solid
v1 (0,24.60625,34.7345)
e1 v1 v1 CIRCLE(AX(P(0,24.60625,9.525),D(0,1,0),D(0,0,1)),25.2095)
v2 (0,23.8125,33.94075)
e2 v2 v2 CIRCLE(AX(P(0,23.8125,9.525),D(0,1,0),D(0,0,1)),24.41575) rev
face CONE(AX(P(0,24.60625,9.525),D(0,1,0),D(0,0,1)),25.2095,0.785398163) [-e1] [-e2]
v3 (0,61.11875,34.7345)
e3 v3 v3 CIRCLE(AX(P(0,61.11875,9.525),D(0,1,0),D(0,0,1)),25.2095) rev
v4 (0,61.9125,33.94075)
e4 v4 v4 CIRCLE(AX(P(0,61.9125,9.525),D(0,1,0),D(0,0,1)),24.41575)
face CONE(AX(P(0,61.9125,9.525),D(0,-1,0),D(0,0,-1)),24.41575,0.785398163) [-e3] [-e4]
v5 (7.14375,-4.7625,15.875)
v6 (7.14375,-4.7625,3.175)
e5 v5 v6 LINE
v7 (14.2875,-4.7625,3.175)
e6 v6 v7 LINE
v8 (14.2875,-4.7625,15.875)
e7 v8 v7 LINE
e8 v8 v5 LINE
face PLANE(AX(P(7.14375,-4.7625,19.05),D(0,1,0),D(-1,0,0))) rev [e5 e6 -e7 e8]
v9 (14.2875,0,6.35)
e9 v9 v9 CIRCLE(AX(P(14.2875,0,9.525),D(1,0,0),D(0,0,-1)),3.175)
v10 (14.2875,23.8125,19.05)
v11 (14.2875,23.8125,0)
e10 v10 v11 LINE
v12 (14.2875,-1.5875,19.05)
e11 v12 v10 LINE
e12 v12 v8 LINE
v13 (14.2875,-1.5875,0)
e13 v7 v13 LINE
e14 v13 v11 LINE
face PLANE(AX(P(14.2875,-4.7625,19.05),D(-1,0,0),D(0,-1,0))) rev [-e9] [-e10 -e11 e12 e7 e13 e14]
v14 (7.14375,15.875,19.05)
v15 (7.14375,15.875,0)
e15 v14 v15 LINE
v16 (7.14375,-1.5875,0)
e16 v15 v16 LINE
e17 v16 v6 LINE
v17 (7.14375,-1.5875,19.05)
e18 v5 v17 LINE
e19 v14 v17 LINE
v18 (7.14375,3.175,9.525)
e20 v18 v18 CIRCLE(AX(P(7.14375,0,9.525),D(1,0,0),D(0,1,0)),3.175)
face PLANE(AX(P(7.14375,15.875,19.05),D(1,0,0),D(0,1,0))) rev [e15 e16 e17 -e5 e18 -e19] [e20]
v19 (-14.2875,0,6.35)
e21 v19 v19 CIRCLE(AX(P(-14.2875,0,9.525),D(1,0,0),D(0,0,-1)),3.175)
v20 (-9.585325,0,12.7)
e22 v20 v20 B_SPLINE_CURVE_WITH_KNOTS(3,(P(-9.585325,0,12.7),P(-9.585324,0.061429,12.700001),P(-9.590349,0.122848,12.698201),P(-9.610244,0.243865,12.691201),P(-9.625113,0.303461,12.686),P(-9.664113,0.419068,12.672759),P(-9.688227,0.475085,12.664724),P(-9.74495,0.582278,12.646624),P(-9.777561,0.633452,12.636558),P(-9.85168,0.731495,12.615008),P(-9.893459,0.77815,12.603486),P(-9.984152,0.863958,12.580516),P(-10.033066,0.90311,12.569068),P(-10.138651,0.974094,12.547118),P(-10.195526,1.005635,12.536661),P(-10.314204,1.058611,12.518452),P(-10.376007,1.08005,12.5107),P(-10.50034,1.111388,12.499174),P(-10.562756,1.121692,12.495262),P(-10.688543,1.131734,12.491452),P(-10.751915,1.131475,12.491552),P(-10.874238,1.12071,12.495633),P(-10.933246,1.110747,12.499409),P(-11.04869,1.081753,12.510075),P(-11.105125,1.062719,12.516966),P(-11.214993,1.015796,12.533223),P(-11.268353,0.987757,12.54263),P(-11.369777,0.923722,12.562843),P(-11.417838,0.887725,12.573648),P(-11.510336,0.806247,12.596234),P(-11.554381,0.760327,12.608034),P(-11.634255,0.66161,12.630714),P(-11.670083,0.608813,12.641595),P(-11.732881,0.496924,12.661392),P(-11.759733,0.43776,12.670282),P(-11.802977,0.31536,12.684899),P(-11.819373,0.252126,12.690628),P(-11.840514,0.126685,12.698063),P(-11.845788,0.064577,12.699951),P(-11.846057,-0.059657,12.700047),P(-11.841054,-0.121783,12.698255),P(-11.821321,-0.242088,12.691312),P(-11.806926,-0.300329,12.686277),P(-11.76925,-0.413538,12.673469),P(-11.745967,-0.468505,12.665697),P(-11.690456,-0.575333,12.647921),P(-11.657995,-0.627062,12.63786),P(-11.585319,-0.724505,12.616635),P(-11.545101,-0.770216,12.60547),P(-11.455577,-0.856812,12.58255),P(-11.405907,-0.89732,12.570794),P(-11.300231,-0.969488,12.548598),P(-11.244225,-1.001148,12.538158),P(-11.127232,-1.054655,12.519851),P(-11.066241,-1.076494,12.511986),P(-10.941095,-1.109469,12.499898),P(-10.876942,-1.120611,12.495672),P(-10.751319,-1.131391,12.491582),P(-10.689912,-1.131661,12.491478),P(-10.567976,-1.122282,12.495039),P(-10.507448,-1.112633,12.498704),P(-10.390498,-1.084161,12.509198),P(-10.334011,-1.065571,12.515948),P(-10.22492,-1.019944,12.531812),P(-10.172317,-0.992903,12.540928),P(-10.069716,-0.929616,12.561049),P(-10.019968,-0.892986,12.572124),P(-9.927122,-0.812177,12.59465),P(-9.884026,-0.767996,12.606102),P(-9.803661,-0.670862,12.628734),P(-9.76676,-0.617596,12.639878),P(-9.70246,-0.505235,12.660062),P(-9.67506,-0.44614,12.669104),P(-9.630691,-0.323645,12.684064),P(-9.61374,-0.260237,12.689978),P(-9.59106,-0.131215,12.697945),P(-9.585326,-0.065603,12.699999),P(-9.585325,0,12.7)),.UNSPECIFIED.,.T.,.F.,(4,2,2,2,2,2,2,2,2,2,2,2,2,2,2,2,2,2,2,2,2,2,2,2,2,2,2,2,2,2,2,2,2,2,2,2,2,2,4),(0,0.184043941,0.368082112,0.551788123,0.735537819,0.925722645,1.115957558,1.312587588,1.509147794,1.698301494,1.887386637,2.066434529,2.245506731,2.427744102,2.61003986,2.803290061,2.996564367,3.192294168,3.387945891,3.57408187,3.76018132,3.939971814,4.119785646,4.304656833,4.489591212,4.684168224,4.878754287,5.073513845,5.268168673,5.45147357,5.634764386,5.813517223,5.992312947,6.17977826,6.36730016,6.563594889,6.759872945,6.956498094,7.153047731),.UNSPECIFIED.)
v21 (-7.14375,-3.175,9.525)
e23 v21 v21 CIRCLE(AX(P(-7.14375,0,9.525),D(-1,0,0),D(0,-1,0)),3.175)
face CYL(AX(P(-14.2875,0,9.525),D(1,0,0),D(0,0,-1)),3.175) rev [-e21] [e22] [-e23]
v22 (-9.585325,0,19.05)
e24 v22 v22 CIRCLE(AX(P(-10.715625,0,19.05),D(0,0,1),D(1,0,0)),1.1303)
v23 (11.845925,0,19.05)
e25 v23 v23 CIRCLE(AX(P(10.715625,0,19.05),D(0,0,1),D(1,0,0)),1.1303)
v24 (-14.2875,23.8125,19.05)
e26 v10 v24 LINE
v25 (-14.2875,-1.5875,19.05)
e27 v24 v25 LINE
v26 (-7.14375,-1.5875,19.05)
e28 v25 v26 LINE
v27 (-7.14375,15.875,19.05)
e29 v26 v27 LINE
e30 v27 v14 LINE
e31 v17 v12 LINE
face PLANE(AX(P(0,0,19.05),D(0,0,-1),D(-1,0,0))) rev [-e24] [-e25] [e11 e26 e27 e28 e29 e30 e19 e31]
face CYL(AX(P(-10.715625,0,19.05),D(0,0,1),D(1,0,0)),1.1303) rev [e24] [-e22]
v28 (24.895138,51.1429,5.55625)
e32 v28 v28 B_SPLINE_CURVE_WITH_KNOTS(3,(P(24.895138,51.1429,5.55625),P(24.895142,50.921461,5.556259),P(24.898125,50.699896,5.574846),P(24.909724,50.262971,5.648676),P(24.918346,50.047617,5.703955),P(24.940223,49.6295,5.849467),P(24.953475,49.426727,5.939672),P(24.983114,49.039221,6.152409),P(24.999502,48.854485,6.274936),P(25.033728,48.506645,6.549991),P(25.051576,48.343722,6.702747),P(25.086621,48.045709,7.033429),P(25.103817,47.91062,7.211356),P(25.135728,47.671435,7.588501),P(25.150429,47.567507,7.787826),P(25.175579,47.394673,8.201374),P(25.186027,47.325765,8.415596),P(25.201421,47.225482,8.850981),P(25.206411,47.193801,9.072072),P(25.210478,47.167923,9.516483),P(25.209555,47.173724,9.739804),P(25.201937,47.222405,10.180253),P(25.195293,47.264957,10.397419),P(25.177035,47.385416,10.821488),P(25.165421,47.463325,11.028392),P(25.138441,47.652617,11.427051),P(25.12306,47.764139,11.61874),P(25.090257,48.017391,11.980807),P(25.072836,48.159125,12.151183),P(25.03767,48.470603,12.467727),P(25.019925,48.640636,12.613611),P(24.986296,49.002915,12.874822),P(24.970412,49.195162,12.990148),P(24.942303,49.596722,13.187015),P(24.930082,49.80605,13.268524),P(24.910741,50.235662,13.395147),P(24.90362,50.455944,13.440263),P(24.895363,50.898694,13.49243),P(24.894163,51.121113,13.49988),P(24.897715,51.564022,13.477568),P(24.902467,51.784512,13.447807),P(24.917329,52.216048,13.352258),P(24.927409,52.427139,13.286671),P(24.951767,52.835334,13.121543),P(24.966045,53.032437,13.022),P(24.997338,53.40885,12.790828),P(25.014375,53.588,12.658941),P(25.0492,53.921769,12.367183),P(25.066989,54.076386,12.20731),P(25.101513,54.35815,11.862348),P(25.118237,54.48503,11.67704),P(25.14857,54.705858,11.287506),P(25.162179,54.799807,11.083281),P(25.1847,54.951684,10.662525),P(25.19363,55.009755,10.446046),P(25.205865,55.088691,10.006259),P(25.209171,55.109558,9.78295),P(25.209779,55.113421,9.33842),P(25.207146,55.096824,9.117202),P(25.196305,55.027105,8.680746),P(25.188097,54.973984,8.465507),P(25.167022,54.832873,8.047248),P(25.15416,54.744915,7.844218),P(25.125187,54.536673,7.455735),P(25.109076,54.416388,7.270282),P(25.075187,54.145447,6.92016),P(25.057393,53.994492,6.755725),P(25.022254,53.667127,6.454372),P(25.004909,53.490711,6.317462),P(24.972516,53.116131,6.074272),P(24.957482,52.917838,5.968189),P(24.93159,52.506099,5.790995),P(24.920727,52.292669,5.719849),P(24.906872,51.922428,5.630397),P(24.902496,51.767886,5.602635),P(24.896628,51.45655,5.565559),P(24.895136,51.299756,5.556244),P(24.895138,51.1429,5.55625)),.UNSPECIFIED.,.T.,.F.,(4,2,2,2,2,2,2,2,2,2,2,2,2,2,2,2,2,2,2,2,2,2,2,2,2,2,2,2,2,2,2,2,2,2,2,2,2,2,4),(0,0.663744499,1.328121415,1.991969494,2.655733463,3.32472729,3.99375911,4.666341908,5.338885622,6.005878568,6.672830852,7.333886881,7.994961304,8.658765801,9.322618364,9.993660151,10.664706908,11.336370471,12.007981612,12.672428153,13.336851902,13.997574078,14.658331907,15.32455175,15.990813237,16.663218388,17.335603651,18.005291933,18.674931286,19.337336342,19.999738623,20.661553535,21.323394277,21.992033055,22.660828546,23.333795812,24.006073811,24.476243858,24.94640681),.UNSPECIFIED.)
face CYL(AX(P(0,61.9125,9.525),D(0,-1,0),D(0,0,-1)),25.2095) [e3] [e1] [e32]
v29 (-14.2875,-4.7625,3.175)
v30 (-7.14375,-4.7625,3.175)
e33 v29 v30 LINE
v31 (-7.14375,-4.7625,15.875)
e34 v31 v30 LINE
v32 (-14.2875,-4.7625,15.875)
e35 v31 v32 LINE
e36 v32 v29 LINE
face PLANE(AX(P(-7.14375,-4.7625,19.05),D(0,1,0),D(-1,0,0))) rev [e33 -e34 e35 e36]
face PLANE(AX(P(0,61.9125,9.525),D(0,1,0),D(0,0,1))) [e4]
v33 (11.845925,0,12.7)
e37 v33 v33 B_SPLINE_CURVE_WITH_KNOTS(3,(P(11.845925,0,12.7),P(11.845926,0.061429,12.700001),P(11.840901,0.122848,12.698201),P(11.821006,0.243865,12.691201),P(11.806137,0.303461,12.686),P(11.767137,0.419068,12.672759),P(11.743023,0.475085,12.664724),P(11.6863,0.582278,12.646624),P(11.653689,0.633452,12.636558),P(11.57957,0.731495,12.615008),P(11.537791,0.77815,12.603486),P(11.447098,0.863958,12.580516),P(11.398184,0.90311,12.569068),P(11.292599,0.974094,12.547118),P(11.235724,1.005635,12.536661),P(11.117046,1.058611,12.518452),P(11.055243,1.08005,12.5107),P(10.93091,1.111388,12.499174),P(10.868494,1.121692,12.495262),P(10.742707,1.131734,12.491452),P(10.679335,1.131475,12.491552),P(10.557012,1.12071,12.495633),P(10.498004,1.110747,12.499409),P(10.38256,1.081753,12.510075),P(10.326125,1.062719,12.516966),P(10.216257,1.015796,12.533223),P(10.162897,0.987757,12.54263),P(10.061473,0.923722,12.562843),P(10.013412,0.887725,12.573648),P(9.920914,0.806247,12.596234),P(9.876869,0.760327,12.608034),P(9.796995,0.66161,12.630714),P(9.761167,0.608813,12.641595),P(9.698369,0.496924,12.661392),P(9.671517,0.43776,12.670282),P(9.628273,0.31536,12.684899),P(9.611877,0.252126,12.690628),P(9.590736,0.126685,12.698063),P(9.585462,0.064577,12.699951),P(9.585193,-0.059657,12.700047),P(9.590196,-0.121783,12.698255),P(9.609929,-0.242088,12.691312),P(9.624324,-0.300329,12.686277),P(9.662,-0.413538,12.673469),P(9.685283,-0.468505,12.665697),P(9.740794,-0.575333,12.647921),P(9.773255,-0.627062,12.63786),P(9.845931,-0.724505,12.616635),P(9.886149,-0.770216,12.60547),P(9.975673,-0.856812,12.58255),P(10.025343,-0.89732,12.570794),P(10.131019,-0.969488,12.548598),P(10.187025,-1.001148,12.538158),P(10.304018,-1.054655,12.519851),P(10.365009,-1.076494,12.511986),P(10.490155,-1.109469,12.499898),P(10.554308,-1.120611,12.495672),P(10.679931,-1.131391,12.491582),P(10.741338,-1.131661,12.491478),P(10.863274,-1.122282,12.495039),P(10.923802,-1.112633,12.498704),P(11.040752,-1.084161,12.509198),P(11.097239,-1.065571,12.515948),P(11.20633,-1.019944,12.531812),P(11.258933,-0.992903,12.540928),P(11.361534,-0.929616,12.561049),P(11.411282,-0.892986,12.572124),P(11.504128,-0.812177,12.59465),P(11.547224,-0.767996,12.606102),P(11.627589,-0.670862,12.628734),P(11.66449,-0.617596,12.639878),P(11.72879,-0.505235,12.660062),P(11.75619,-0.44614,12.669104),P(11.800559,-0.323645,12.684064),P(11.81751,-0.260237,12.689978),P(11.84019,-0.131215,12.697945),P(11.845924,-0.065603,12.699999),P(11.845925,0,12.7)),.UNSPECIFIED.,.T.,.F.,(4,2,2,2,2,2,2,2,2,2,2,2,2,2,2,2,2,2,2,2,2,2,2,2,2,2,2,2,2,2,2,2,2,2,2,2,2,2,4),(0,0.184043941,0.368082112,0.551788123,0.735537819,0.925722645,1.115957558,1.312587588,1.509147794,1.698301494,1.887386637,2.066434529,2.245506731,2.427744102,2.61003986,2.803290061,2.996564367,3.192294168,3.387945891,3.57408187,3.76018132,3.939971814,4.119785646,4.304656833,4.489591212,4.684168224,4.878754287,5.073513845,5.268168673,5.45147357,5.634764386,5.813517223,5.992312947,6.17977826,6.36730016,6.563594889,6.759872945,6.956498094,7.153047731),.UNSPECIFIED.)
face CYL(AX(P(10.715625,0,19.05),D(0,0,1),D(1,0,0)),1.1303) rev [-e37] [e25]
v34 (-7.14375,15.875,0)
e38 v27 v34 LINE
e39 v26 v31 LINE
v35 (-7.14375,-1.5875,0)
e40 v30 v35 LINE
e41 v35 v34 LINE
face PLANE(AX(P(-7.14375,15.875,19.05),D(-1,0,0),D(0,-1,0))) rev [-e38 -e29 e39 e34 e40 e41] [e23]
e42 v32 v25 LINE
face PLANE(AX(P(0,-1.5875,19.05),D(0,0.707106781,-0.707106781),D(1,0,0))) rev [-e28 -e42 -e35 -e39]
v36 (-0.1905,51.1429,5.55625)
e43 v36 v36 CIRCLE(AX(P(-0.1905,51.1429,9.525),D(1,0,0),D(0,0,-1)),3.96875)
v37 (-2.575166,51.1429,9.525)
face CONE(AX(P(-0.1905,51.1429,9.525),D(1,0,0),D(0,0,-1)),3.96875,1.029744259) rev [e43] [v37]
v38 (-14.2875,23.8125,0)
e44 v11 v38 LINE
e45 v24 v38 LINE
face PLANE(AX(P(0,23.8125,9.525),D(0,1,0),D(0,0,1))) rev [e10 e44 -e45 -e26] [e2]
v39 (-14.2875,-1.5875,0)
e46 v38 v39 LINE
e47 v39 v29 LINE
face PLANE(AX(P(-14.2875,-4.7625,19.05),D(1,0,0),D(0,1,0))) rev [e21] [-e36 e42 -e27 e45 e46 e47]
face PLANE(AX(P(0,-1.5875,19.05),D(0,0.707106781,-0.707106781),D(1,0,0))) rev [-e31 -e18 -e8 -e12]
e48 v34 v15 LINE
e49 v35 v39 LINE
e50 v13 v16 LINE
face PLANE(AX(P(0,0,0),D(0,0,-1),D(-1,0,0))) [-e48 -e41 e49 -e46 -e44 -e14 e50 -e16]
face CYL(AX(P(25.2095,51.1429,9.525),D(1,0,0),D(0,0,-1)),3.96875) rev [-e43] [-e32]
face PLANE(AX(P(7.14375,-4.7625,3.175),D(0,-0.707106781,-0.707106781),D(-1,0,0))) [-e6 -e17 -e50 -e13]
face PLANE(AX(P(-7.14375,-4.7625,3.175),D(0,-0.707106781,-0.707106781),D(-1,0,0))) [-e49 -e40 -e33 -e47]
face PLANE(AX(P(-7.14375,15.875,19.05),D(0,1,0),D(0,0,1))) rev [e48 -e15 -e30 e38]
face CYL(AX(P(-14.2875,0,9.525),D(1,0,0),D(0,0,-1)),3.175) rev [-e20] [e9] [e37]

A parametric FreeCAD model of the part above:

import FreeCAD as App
import Part
import Sketcher
from FreeCAD import Vector
Q = App.Units.Quantity


def edges_at(feature, points):
    """Names of the edges that pass closest to the given points."""
    edges = feature.Shape.Edges
    near = lambda p: min(range(len(edges)), key=lambda i: edges[i].distToShape(Part.Vertex(*p))[0])
    return sorted({f"Edge{near(p) + 1}" for p in points})


def add_polygon(sketch, points):
    """Adds a closed chain of lines whose ends are joined by coincident constraints."""
    first, n = sketch.GeometryCount, len(points)
    for a, b in zip(points, points[1:] + points[:1]):
        sketch.addGeometry(Part.LineSegment(App.Vector(*a, 0), App.Vector(*b, 0)), False)
    for i in range(n):
        sketch.addConstraint(Sketcher.Constraint("Coincident", first + i, 2, first + (i + 1) % n, 1))

doc = App.newDocument("Part")
body = doc.addObject("PartDesign::Body", "Body")

sketch1 = body.newObject("Sketcher::SketchObject", "Sketch")
sketch1.AttachmentSupport = (doc.getObject("XY_Plane"), [""])
sketch1.MapMode = "FlatFace"
add_polygon(sketch1, [(-7.14375, -4.7625), (-7.14375, 15.875), (7.14375, 15.875), (7.14375, -4.7625), (14.2875, -4.7625), (14.2875, 23.8125), (-14.2875, 23.8125), (-14.2875, -4.7625)])
sketch1.addConstraint([
    Sketcher.Constraint("Vertical", 0),
    Sketcher.Constraint("Horizontal", 1),
    Sketcher.Constraint("Vertical", 2),
    Sketcher.Constraint("Horizontal", 3),
    Sketcher.Constraint("Vertical", 4),
    Sketcher.Constraint("Horizontal", 5),
    Sketcher.Constraint("Vertical", 6),
    Sketcher.Constraint("Horizontal", 7),
    Sketcher.Constraint("Symmetric", 3, 2, 6, 2, -2),
    Sketcher.Constraint("Equal", 3, 7),
    Sketcher.Constraint("Equal", 5, 4),
    Sketcher.Constraint("DistanceX", 1, 1, 1, 2, Q("0.5625 in")),
    Sketcher.Constraint("DistanceX", 3, 1, 3, 2, Q("0.28125 in")),
    Sketcher.Constraint("DistanceY", 0, 1, 0, 2, Q("0.8125 in")),
    Sketcher.Constraint("DistanceY", -1, 1, 0, 2, Q("0.625 in")),
])
pad1 = body.newObject("PartDesign::Pad", "Pad")
pad1.Profile = sketch1
pad1.Length = Q("0.75 in")

sketch2 = body.newObject("Sketcher::SketchObject", "Sketch001")
sketch2.AttachmentSupport = (doc.getObject("YZ_Plane"), [""])
sketch2.MapMode = "FlatFace"
sketch2.AttachmentOffset = App.Placement(Vector(0, 0, 0.5625 * 25.4), App.Rotation())
sketch2.addGeometry(Part.Circle(Vector(0, 9.525, 0), Vector(0, 0, 1), 3.175), False)
sketch2.addConstraint([
    Sketcher.Constraint("PointOnObject", 0, 3, -2),
    Sketcher.Constraint("Diameter", 0, Q("0.25 in")),
    Sketcher.Constraint("DistanceY", -1, 1, 0, 3, Q("0.375 in")),
])
pocket1 = body.newObject("PartDesign::Pocket", "Pocket")
pocket1.Profile = sketch2
pocket1.Type = "ThroughAll"
doc.recompute()

chamfer = body.newObject("PartDesign::Chamfer", "Chamfer")
chamfer.Base = (pocket1, edges_at(pocket1, [
    (10.716, -4.763, 19.05),
    (-10.716, -4.763, 19.05),
    (-10.716, -4.763, 0),
    (10.716, -4.763, 0),
]))
chamfer.Size = Q("0.125 in")

sketch3 = body.newObject("Sketcher::SketchObject", "Sketch002")
sketch3.AttachmentSupport = (doc.getObject("XZ_Plane"), [""])
sketch3.MapMode = "FlatFace"
sketch3.AttachmentOffset = App.Placement(Vector(0, 0, -0.9375 * 25.4), App.Rotation())
sketch3.addGeometry(Part.Circle(Vector(0, 9.525, 0), Vector(0, 0, 1), 25.2095), False)
sketch3.addConstraint([
    Sketcher.Constraint("PointOnObject", 0, 3, -2),
    Sketcher.Constraint("Diameter", 0, Q("1.985 in")),
    Sketcher.Constraint("DistanceY", -1, 1, 0, 3, Q("0.375 in")),
])
pad2 = body.newObject("PartDesign::Pad", "Pad001")
pad2.Profile = sketch3
pad2.Length = Q("1.5 in")
pad2.Reversed = True
doc.recompute()

chamfer2 = body.newObject("PartDesign::Chamfer", "Chamfer001")
chamfer2.Base = (pad2, edges_at(pad2, [(0, 23.812, 34.734), (0, 61.913, 34.734)]))
chamfer2.Size = Q("0.03125 in")

sketch4 = body.newObject("Sketcher::SketchObject", "Sketch003")
sketch4.AttachmentSupport = (doc.getObject("XY_Plane"), [""])
sketch4.MapMode = "FlatFace"
sketch4.AttachmentOffset = App.Placement(Vector(0, 0, 0.75 * 25.4), App.Rotation())
sketch4.addGeometry(Part.Circle(Vector(-10.715625, 0, 0), Vector(0, 0, 1), 1.1303), False)
sketch4.addConstraint([
    Sketcher.Constraint("PointOnObject", 0, 3, -1),
    Sketcher.Constraint("Diameter", 0, Q("0.089 in")),
    Sketcher.Constraint("DistanceX", 0, 3, -1, 1, Q("0.421875 in")),
])
pocket2 = body.newObject("PartDesign::Pocket", "Pocket001")
pocket2.Profile = sketch4
pocket2.Type = "UpToFirst"

sketch5 = body.newObject("Sketcher::SketchObject", "Sketch004")
sketch5.AttachmentSupport = (doc.getObject("XY_Plane"), [""])
sketch5.MapMode = "FlatFace"
sketch5.AttachmentOffset = App.Placement(Vector(0, 0, 0.75 * 25.4), App.Rotation())
sketch5.addGeometry(Part.Circle(Vector(10.715625, 0, 0), Vector(0, 0, 1), 1.1303), False)
sketch5.addConstraint([
    Sketcher.Constraint("PointOnObject", 0, 3, -1),
    Sketcher.Constraint("Diameter", 0, Q("0.089 in")),
    Sketcher.Constraint("DistanceX", -1, 1, 0, 3, Q("0.421875 in")),
])
pocket3 = body.newObject("PartDesign::Pocket", "Pocket002")
pocket3.Profile = sketch5
pocket3.Type = "UpToFirst"

sketch6 = body.newObject("Sketcher::SketchObject", "Sketch005")
sketch6.AttachmentSupport = (doc.getObject("YZ_Plane"), [""])
sketch6.MapMode = "FlatFace"
sketch6.AttachmentOffset = App.Placement(Vector(0, 0, 0.9925 * 25.4), App.Rotation())
sketch6.addGeometry(Part.Circle(Vector(51.1429, 9.525, 0), Vector(0, 0, 1), 3.96875), False)
sketch6.addConstraint([
    Sketcher.Constraint("Diameter", 0, Q("0.3125 in")),
    Sketcher.Constraint("DistanceY", -1, 1, 0, 3, Q("0.375 in")),
    Sketcher.Constraint("DistanceX", -1, 1, 0, 3, Q("2.0135 in")),
])
doc.recompute()
hole = body.newObject("PartDesign::Hole", "Hole")
hole.Profile = sketch6
hole.ThreadType = "None"
hole.Diameter = Q("0.3125 in")
hole.DepthType = "Dimension"
hole.Depth = Q("1 in")
hole.DrillPoint = "Angled"
hole.DrillPointAngle = 118

doc.recompute()
